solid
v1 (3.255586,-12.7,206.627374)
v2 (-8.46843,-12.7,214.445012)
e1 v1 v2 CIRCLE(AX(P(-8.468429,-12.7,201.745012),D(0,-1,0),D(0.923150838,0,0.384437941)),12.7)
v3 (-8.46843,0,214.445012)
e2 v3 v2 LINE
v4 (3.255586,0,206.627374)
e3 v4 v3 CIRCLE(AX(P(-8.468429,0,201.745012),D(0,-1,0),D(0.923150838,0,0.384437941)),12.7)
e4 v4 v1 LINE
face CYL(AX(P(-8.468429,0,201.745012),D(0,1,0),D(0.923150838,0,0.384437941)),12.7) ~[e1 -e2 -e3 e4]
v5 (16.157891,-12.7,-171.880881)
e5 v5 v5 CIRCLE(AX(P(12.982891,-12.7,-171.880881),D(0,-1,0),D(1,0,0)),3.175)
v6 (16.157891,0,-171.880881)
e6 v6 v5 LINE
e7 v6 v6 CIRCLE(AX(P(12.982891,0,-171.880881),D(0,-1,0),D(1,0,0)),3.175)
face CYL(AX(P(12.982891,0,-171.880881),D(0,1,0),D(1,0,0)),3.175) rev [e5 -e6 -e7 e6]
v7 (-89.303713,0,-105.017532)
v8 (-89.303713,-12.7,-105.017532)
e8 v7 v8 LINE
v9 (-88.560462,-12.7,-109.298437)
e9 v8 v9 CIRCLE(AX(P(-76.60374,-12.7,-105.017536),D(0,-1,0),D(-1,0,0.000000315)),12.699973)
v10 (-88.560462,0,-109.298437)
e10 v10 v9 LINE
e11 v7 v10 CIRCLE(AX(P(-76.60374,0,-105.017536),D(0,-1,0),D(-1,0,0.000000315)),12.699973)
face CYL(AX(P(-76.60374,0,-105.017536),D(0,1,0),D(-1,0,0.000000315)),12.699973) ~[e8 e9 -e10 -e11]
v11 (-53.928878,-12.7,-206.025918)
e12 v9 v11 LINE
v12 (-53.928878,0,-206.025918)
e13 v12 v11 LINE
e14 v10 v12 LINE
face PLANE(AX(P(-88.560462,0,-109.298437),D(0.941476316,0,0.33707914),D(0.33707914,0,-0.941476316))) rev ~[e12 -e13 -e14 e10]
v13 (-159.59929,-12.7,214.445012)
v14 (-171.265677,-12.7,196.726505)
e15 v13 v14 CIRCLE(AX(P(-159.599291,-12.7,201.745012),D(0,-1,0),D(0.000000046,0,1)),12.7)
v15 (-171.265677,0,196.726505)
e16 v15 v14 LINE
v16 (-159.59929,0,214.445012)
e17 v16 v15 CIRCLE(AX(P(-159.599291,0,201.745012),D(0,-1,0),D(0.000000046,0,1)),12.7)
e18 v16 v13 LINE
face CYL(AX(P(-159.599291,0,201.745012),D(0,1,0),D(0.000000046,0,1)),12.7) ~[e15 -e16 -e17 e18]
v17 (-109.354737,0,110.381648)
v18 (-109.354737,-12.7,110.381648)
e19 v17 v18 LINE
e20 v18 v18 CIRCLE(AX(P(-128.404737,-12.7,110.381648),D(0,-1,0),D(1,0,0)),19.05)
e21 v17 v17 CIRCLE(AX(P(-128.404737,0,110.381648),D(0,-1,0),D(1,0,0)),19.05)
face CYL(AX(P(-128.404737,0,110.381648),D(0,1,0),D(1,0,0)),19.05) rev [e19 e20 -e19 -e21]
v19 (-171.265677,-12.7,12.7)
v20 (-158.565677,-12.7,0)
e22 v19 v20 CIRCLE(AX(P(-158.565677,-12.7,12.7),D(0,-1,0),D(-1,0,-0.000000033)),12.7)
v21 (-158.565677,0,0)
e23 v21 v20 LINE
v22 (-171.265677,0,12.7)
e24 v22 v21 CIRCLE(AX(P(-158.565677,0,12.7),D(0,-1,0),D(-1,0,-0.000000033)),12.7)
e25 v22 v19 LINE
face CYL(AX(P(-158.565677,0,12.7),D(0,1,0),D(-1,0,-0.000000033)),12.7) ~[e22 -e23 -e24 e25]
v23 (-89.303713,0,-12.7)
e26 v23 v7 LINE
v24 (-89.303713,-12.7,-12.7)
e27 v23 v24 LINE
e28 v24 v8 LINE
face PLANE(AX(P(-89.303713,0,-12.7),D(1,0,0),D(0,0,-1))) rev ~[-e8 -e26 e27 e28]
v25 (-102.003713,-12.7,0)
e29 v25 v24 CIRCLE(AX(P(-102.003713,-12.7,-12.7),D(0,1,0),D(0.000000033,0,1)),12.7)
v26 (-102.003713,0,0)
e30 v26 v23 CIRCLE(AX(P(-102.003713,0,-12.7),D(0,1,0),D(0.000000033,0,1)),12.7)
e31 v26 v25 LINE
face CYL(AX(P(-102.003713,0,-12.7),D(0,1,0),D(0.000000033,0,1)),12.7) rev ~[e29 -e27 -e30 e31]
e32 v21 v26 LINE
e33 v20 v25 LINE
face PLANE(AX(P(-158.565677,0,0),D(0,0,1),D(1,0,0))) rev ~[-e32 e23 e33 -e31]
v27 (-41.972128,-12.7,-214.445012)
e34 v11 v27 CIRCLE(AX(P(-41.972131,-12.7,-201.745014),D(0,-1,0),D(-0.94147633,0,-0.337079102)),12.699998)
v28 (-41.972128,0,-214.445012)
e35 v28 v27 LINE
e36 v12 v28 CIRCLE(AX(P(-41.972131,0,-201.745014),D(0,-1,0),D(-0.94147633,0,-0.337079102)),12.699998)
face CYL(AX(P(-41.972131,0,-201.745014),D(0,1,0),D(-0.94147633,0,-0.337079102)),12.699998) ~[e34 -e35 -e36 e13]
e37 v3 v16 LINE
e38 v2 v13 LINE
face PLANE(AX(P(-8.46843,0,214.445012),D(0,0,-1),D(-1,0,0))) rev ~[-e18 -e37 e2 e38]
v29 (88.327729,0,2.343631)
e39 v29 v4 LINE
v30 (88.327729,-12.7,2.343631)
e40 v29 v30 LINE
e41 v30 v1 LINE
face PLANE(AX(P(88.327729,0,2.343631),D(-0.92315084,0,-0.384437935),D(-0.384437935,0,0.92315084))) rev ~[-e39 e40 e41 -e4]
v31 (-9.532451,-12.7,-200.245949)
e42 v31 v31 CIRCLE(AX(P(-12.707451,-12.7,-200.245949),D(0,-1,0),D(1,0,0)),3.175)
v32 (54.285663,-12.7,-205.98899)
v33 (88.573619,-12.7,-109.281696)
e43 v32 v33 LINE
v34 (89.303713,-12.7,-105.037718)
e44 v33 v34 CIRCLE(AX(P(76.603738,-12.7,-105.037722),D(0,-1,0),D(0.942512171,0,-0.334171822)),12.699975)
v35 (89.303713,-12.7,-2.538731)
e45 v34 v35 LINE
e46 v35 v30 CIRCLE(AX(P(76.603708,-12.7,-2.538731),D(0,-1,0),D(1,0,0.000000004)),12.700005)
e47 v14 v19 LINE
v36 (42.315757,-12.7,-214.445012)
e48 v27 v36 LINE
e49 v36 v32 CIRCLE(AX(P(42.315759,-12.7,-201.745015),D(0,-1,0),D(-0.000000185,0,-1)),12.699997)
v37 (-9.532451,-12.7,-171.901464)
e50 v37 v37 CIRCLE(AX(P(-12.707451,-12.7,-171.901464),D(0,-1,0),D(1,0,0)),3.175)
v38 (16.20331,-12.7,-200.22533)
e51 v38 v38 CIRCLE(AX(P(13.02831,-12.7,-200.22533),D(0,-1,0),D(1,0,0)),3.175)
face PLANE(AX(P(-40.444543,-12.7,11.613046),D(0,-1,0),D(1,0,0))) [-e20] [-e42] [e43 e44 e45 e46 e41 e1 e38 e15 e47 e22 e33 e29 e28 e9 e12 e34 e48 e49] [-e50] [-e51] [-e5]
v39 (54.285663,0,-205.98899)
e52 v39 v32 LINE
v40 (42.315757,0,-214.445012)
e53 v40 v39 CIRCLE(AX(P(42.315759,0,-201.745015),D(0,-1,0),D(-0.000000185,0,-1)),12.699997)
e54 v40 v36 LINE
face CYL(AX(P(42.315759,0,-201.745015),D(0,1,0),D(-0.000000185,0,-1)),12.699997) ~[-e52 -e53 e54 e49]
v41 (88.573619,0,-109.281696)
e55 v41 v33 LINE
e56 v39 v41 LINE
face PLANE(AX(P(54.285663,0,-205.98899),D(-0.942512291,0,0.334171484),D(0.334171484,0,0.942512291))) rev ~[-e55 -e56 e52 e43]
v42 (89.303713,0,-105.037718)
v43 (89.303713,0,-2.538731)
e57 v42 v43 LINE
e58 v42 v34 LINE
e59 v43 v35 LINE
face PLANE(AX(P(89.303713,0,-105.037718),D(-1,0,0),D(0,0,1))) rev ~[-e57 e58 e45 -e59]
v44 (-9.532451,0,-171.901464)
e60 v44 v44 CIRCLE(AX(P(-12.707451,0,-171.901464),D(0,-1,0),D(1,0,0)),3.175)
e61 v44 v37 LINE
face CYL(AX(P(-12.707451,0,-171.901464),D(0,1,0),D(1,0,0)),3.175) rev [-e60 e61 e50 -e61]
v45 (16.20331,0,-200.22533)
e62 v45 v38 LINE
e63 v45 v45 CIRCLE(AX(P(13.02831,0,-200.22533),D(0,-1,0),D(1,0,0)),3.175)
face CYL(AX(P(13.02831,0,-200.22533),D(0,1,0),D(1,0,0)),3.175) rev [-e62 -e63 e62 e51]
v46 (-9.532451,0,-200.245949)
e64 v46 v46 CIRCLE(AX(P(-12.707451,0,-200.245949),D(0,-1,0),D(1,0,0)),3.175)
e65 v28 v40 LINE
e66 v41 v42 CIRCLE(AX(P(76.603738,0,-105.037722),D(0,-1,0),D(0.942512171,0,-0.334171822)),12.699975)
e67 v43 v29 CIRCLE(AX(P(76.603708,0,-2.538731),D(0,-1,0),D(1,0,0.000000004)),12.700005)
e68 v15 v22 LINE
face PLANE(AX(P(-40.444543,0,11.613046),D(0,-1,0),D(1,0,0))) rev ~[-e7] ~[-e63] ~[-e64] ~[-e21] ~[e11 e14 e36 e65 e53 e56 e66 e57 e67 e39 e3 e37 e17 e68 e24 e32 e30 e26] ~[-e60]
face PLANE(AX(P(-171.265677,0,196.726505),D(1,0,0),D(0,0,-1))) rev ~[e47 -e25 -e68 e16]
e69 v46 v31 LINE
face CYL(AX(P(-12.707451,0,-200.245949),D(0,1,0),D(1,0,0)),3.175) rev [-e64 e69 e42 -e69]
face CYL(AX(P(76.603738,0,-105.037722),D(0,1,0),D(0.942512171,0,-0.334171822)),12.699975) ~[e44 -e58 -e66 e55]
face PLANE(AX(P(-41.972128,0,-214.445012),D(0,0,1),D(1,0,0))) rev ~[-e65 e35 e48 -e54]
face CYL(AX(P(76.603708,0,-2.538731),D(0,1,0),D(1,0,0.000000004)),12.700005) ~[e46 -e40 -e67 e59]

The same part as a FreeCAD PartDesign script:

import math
import FreeCAD as App
import Part
import Sketcher

V = App.Vector
Q = App.Units.Quantity

doc = App.newDocument("Part")
body = doc.addObject("PartDesign::Body", "Body")

sketch1 = doc.addObject("Sketcher::SketchObject", "Sketch")
body.addObject(sketch1)
sketch1.AttachmentSupport = (doc.XZ_Plane, [""])
sketch1.MapMode = "FlatFace"
sketch1.addGeometry(Part.ArcOfCircle(Part.Circle(V(-8.468429, 201.745012, 0), V(0, 0, 1), 12.7), math.radians(22.608851), math.radians(90.000003)), False)
sketch1.addGeometry(Part.LineSegment(V(-8.46843, 214.445012, 0), V(-159.59929, 214.445012, 0)), False)
sketch1.addGeometry(Part.ArcOfCircle(Part.Circle(V(-159.599291, 201.745012, 0), V(0, 0, 1), 12.7), math.radians(89.999997), math.radians(203.275833)), False)
sketch1.addGeometry(Part.LineSegment(V(-171.265677, 196.726505, 0), V(-171.265677, 12.7, 0)), False)
sketch1.addGeometry(Part.ArcOfCircle(Part.Circle(V(-158.565677, 12.7, 0), V(0, 0, 1), 12.7), math.radians(-179.999998), math.radians(-90.000002)), False)
sketch1.addGeometry(Part.LineSegment(V(-158.565677, 0, 0), V(-102.003713, 0, 0)), False)
sketch1.addGeometry(Part.ArcOfCircle(Part.Circle(V(-102.003713, -12.7, 0), V(0, 0, 1), 12.7), math.radians(0.000002), math.radians(89.999998)), False)
sketch1.addGeometry(Part.LineSegment(V(-89.303713, -12.7, 0), V(-89.303713, -105.017532, 0)), False)
sketch1.addGeometry(Part.ArcOfCircle(Part.Circle(V(-76.60374, -105.017536, 0), V(0, 0, 1), 12.699973), math.radians(179.999982), math.radians(199.699043)), False)
sketch1.addGeometry(Part.LineSegment(V(-88.560462, -109.298437, 0), V(-53.928878, -206.025918, 0)), False)
sketch1.addGeometry(Part.ArcOfCircle(Part.Circle(V(-41.972131, -201.745014, 0), V(0, 0, 1), 12.699998), math.radians(-160.300983), math.radians(-89.999988)), False)
sketch1.addGeometry(Part.LineSegment(V(-41.972128, -214.445012, 0), V(42.315757, -214.445012, 0)), False)
sketch1.addGeometry(Part.ArcOfCircle(Part.Circle(V(42.315759, -201.745015, 0), V(0, 0, 1), 12.699997), math.radians(-90.000011), math.radians(-19.522154)), False)
sketch1.addGeometry(Part.LineSegment(V(54.285663, -205.98899, 0), V(88.573619, -109.281696, 0)), False)
sketch1.addGeometry(Part.ArcOfCircle(Part.Circle(V(76.603738, -105.037722, 0), V(0, 0, 1), 12.699975), math.radians(-19.522185), math.radians(0.000019)), False)
sketch1.addGeometry(Part.LineSegment(V(89.303713, -105.037718, 0), V(89.303713, -2.538731, 0)), False)
sketch1.addGeometry(Part.ArcOfCircle(Part.Circle(V(76.603708, -2.538731, 0), V(0, 0, 1), 12.700005), math.radians(0), math.radians(22.608842)), False)
sketch1.addGeometry(Part.LineSegment(V(88.327729, 2.343631, 0), V(3.255586, 206.627374, 0)), False)
sketch1.addGeometry(Part.Circle(V(-12.707451, -200.245949, 0), V(0, 0, 1), 3.175), False)
sketch1.addGeometry(Part.Circle(V(-12.707451, -171.901464, 0), V(0, 0, 1), 3.175), False)
sketch1.addGeometry(Part.Circle(V(13.02831, -200.22533, 0), V(0, 0, 1), 3.175), False)
sketch1.addGeometry(Part.Circle(V(12.982891, -171.880881, 0), V(0, 0, 1), 3.175), False)
sketch1.addGeometry(Part.Circle(V(-128.404737, 110.381648, 0), V(0, 0, 1), 19.05), False)
sketch1.addConstraint(Sketcher.Constraint("Coincident", 0, 2, 1, 1))
sketch1.addConstraint(Sketcher.Constraint("Coincident", 1, 2, 2, 1))
sketch1.addConstraint(Sketcher.Constraint("Coincident", 2, 2, 3, 1))
sketch1.addConstraint(Sketcher.Constraint("Coincident", 3, 2, 4, 1))
sketch1.addConstraint(Sketcher.Constraint("Coincident", 4, 2, 5, 1))
sketch1.addConstraint(Sketcher.Constraint("Coincident", 5, 2, 6, 2))
sketch1.addConstraint(Sketcher.Constraint("Coincident", 6, 1, 7, 1))
sketch1.addConstraint(Sketcher.Constraint("Coincident", 7, 2, 8, 1))
sketch1.addConstraint(Sketcher.Constraint("Coincident", 8, 2, 9, 1))
sketch1.addConstraint(Sketcher.Constraint("Coincident", 9, 2, 10, 1))
sketch1.addConstraint(Sketcher.Constraint("Coincident", 10, 2, 11, 1))
sketch1.addConstraint(Sketcher.Constraint("Coincident", 11, 2, 12, 1))
sketch1.addConstraint(Sketcher.Constraint("Coincident", 12, 2, 13, 1))
sketch1.addConstraint(Sketcher.Constraint("Coincident", 13, 2, 14, 1))
sketch1.addConstraint(Sketcher.Constraint("Coincident", 14, 2, 15, 1))
sketch1.addConstraint(Sketcher.Constraint("Coincident", 15, 2, 16, 1))
sketch1.addConstraint(Sketcher.Constraint("Coincident", 16, 2, 17, 1))
sketch1.addConstraint(Sketcher.Constraint("Coincident", 17, 2, 0, 1))
sketch1.addConstraint(Sketcher.Constraint("Horizontal", 1))
sketch1.addConstraint(Sketcher.Constraint("Vertical", 3))
sketch1.addConstraint(Sketcher.Constraint("Horizontal", 5))
sketch1.addConstraint(Sketcher.Constraint("Vertical", 7))
sketch1.addConstraint(Sketcher.Constraint("Horizontal", 11))
sketch1.addConstraint(Sketcher.Constraint("Vertical", 15))
sketch1.addConstraint(Sketcher.Constraint("PointOnObject", 4, 2, -1))
sketch1.addConstraint(Sketcher.Constraint("Diameter", 22, Q("1.5 in")))
sketch1.addConstraint(Sketcher.Constraint("Radius", 0, Q("0.5 in")))
sketch1.addConstraint(Sketcher.Constraint("Radius", 2, Q("0.5 in")))
sketch1.addConstraint(Sketcher.Constraint("Radius", 4, Q("0.5 in")))
sketch1.addConstraint(Sketcher.Constraint("Radius", 6, Q("0.5 in")))
sketch1.addConstraint(Sketcher.Constraint("Radius", 10, Q("0.4999999 in")))
sketch1.addConstraint(Sketcher.Constraint("Radius", 12, Q("0.4999999 in")))
sketch1.addConstraint(Sketcher.Constraint("Diameter", 18, Q("0.25 in")))
sketch1.addConstraint(Sketcher.Constraint("Diameter", 19, Q("0.25 in")))
sketch1.addConstraint(Sketcher.Constraint("Diameter", 20, Q("0.25 in")))
sketch1.addConstraint(Sketcher.Constraint("Diameter", 21, Q("0.25 in")))
sketch1.addConstraint(Sketcher.Constraint("DistanceY", 6, 3, 3, 2, Q("1 in")))
sketch1.addConstraint(Sketcher.Constraint("DistanceY", 6, 1, 4, 3, Q("1 in")))
sketch1.addConstraint(Sketcher.Constraint("DistanceX", 3, 2, 4, 2, Q("0.5 in")))
sketch1.addConstraint(Sketcher.Constraint("DistanceX", 5, 2, 6, 1, Q("0.5 in")))
sketch1.addConstraint(Sketcher.Constraint("Radius", 8, Q("12.699973 mm")))
sketch1.addConstraint(Sketcher.Constraint("Radius", 14, Q("12.699975 mm")))
sketch1.addConstraint(Sketcher.Constraint("Radius", 16, Q("12.700005 mm")))
sketch1.addConstraint(Sketcher.Constraint("DistanceX", 1, 2, 1, 1, Q("151.13086 mm")))
sketch1.addConstraint(Sketcher.Constraint("DistanceY", 7, 2, 7, 1, Q("92.317532 mm")))
sketch1.addConstraint(Sketcher.Constraint("DistanceX", 10, 3, 0, 3, Q("33.503701 mm")))
sketch1.addConstraint(Sketcher.Constraint("DistanceX", 8, 3, 12, 3, Q("118.919499 mm")))
sketch1.addConstraint(Sketcher.Constraint("DistanceY", 8, 2, 8, 3, Q("4.280901 mm")))
sketch1.addConstraint(Sketcher.Constraint("Distance", 13, Q("102.60587 mm")))
sketch1.addConstraint(Sketcher.Constraint("Distance", 17, Q("221.289668 mm")))
sketch1.addConstraint(Sketcher.Constraint("DistanceX", 5, 1, 5, 2, Q("56.561964 mm")))
sketch1.addConstraint(Sketcher.Constraint("DistanceX", 11, 1, 11, 2, Q("84.287885 mm")))
sketch1.addConstraint(Sketcher.Constraint("DistanceY", 3, 2, 3, 1, Q("184.026505 mm")))
sketch1.addConstraint(Sketcher.Constraint("DistanceY", 15, 1, 15, 2, Q("102.498987 mm")))
sketch1.addConstraint(Sketcher.Constraint("DistanceX", 0, 3, -1, 1, Q("8.468429 mm")))
sketch1.addConstraint(Sketcher.Constraint("DistanceX", 2, 3, -1, 1, Q("159.599291 mm")))
sketch1.addConstraint(Sketcher.Constraint("DistanceX", 8, 3, -1, 1, Q("76.60374 mm")))
sketch1.addConstraint(Sketcher.Constraint("DistanceY", 16, 3, -1, 1, Q("2.538731 mm")))
sketch1.addConstraint(Sketcher.Constraint("DistanceX", 18, 3, -1, 1, Q("12.707451 mm")))
sketch1.addConstraint(Sketcher.Constraint("DistanceY", 18, 3, -1, 1, Q("200.245949 mm")))
sketch1.addConstraint(Sketcher.Constraint("DistanceX", 19, 3, -1, 1, Q("12.707451 mm")))
sketch1.addConstraint(Sketcher.Constraint("DistanceX", -1, 1, 20, 3, Q("13.02831 mm")))
sketch1.addConstraint(Sketcher.Constraint("DistanceY", 20, 3, -1, 1, Q("200.22533 mm")))
sketch1.addConstraint(Sketcher.Constraint("DistanceX", -1, 1, 21, 3, Q("12.982891 mm")))
sketch1.addConstraint(Sketcher.Constraint("DistanceY", 21, 3, -1, 1, Q("171.880881 mm")))
sketch1.addConstraint(Sketcher.Constraint("DistanceY", -1, 1, 22, 3, Q("110.381648 mm")))
sketch1.addConstraint(Sketcher.Constraint("DistanceX", 0, 2, -1, 1, Q("8.46843 mm")))
sketch1.addConstraint(Sketcher.Constraint("DistanceY", 10, 2, -1, 1, Q("214.445012 mm")))
sketch1.addConstraint(Sketcher.Constraint("DistanceY", 12, 2, -1, 1, Q("205.98899 mm")))
sketch1.addConstraint(Sketcher.Constraint("DistanceX", -1, 1, 13, 2, Q("88.573619 mm")))
sketch1.addConstraint(Sketcher.Constraint("DistanceY", 14, 2, -1, 1, Q("105.037718 mm")))
sketch1.addConstraint(Sketcher.Constraint("DistanceX", -1, 1, 16, 2, Q("88.327729 mm")))
sketch1.addConstraint(Sketcher.Constraint("DistanceY", -1, 1, 16, 2, Q("2.343631 mm")))
sketch1.addConstraint(Sketcher.Constraint("DistanceY", 8, 3, 0, 3, Q("306.762548 mm")))
sketch1.addConstraint(Sketcher.Constraint("DistanceY", 10, 3, 19, 3, Q("29.84355 mm")))
sketch1.addConstraint(Sketcher.Constraint("DistanceX", 4, 3, 22, 3, Q("30.16094 mm")))
sketch1.addConstraint(Sketcher.Constraint("DistanceY", 9, 2, 18, 3, Q("5.779969 mm")))
sketch1.addConstraint(Sketcher.Constraint("DistanceX", 9, 2, 10, 2, Q("11.95675 mm")))
pad1 = doc.addObject("PartDesign::Pad", "Pad")
body.addObject(pad1)
pad1.Profile = sketch1
pad1.Length = Q("0.5 in")

doc.recompute()
